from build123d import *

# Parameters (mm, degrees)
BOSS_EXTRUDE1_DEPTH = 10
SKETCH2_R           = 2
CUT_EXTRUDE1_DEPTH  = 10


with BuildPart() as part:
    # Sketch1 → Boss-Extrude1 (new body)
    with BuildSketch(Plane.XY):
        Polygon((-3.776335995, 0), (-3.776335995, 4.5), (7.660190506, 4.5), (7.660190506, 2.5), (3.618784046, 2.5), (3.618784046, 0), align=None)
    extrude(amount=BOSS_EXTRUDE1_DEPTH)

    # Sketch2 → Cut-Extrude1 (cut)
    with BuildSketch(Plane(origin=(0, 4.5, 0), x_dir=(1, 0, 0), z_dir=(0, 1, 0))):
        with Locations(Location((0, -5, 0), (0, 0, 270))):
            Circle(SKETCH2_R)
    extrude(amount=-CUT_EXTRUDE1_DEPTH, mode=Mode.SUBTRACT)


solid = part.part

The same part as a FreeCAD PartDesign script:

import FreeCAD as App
import Part
import Sketcher

V = App.Vector
Q = App.Units.Quantity

doc = App.newDocument("Part")
body = doc.addObject("PartDesign::Body", "Body")

sketch1 = body.newObject("Sketcher::SketchObject", "Sketch")
sketch1.AttachmentSupport = (doc.getObject("XY_Plane"), [""])
sketch1.MapMode = "FlatFace"
sketch1.addGeometry(Part.LineSegment(V(-3.8, 4.5, 0), V(-3.8, 0, 0)), False)
sketch1.addGeometry(Part.LineSegment(V(-3.8, 0, 0), V(3.6, 0, 0)), False)
sketch1.addGeometry(Part.LineSegment(V(3.6, 0, 0), V(3.6, 2.5, 0)), False)
sketch1.addGeometry(Part.LineSegment(V(3.6, 2.5, 0), V(7.7, 2.5, 0)), False)
sketch1.addGeometry(Part.LineSegment(V(7.7, 2.5, 0), V(7.7, 4.5, 0)), False)
sketch1.addGeometry(Part.LineSegment(V(7.7, 4.5, 0), V(-3.8, 4.5, 0)), False)
sketch1.addConstraint(Sketcher.Constraint("Coincident", 0, 2, 1, 1))
sketch1.addConstraint(Sketcher.Constraint("Coincident", 1, 2, 2, 1))
sketch1.addConstraint(Sketcher.Constraint("Coincident", 2, 2, 3, 1))
sketch1.addConstraint(Sketcher.Constraint("Coincident", 3, 2, 4, 1))
sketch1.addConstraint(Sketcher.Constraint("Coincident", 4, 2, 5, 1))
sketch1.addConstraint(Sketcher.Constraint("Coincident", 5, 2, 0, 1))
sketch1.addConstraint(Sketcher.Constraint("Vertical", 0))
sketch1.addConstraint(Sketcher.Constraint("Horizontal", 1))
sketch1.addConstraint(Sketcher.Constraint("Vertical", 2))
sketch1.addConstraint(Sketcher.Constraint("Horizontal", 3))
sketch1.addConstraint(Sketcher.Constraint("Vertical", 4))
sketch1.addConstraint(Sketcher.Constraint("Horizontal", 5))
sketch1.addConstraint(Sketcher.Constraint("PointOnObject", 0, 2, -1))
sketch1.addConstraint(Sketcher.Constraint("DistanceY", 4, 1, 4, 2, Q("2 mm")))
sketch1.addConstraint(Sketcher.Constraint("DistanceY", 0, 2, 0, 1, Q("4.5 mm")))
sketch1.addConstraint(Sketcher.Constraint("DistanceX", 1, 1, 1, 2, Q("7.39512 mm")))
sketch1.addConstraint(Sketcher.Constraint("DistanceX", 3, 1, 3, 2, Q("4.041406 mm")))
sketch1.addConstraint(Sketcher.Constraint("DistanceX", -1, 1, 3, 2, Q("7.660191 mm")))
pad1 = body.newObject("PartDesign::Pad", "Pad")
pad1.Profile = sketch1
pad1.Length = 10

sketch2 = body.newObject("Sketcher::SketchObject", "Sketch001")
sketch2.AttachmentSupport = (doc.getObject("XZ_Plane"), [""])
sketch2.MapMode = "FlatFace"
sketch2.AttachmentOffset = App.Placement(V(0, 0, -4.5), App.Rotation())
sketch2.addGeometry(Part.Circle(V(0, 5, 0), V(0, 0, 1), 2), False)
sketch2.addConstraint(Sketcher.Constraint("PointOnObject", 0, 3, -2))
sketch2.addConstraint(Sketcher.Constraint("Diameter", 0, Q("4 mm")))
sketch2.addConstraint(Sketcher.Constraint("DistanceY", -1, 1, 0, 3, Q("5 mm")))
pocket1 = body.newObject("PartDesign::Pocket", "Pocket")
pocket1.Profile = sketch2
pocket1.Length = 10
pocket1.Reversed = True

doc.recompute()
